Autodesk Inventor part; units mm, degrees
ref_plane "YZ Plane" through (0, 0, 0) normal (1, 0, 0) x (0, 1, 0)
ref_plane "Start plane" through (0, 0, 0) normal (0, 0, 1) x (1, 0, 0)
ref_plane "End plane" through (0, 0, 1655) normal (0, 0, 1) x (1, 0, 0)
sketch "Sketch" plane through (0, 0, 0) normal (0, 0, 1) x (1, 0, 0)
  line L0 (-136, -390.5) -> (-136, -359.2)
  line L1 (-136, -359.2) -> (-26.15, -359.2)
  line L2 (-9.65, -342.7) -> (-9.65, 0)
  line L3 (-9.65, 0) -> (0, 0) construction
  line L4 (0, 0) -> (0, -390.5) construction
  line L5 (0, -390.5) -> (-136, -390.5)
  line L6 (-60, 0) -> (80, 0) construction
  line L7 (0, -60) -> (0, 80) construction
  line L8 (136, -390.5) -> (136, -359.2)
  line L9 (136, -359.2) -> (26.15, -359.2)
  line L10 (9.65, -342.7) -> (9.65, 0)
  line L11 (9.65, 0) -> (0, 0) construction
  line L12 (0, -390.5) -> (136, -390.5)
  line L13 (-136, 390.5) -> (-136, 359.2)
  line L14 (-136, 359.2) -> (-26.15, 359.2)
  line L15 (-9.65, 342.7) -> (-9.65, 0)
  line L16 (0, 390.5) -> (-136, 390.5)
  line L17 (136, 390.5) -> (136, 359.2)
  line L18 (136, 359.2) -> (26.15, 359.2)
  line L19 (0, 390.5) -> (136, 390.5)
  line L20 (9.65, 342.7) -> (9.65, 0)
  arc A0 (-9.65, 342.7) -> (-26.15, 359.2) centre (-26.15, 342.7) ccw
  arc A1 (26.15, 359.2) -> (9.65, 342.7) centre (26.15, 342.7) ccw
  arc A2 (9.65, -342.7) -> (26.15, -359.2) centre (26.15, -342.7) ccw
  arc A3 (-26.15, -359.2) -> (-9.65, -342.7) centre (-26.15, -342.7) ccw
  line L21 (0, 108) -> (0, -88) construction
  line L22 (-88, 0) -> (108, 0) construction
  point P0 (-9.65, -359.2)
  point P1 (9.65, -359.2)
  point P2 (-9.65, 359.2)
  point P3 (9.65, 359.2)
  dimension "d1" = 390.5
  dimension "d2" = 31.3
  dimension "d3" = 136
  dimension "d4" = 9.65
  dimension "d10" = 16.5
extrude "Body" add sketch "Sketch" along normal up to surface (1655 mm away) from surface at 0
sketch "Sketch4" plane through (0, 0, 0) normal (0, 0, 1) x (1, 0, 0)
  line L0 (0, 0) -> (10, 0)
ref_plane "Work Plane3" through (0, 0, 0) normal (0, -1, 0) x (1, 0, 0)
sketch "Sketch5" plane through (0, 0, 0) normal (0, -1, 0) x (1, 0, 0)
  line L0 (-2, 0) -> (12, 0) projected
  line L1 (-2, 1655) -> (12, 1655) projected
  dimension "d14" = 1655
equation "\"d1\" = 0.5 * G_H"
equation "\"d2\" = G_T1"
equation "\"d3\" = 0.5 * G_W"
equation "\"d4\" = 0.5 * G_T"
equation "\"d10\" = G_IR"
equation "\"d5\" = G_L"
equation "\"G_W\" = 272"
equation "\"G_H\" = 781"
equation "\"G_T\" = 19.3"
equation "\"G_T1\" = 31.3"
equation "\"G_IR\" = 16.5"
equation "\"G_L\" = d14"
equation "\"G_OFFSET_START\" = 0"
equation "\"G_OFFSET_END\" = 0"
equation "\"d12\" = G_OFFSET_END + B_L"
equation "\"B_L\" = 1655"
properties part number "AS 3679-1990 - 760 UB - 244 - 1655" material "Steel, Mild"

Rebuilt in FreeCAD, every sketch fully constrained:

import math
import FreeCAD as App
import Part
import Sketcher

V = App.Vector

doc = App.newDocument("Part")
body = doc.addObject("PartDesign::Body", "Body")

# Sketch on XY plane
sketch1 = doc.addObject("Sketcher::SketchObject", "Sketch")
body.addObject(sketch1)
sketch1.AttachmentSupport = (doc.XY_Plane, [""])
sketch1.MapMode = "FlatFace"
sketch1.addGeometry([
    Part.LineSegment(V(-136, -359.2, 0), V(-136, -390.5, 0)),  # 0
    Part.LineSegment(V(-136, -390.5, 0), V(136, -390.5, 0)),  # 1
    Part.LineSegment(V(136, -390.5, 0), V(136, -359.2, 0)),  # 2
    Part.LineSegment(V(136, -359.2, 0), V(26.15, -359.2, 0)),  # 3
    Part.ArcOfCircle(Part.Circle(V(26.15, -342.7, 0), V(0, 0, 1), 16.5), math.radians(180), math.radians(270)),  # 4
    Part.LineSegment(V(9.65, -342.7, 0), V(9.65, 342.7, 0)),  # 5
    Part.ArcOfCircle(Part.Circle(V(26.15, 342.7, 0), V(0, 0, 1), 16.5), math.radians(90), math.radians(180)),  # 6
    Part.LineSegment(V(26.15, 359.2, 0), V(136, 359.2, 0)),  # 7
    Part.LineSegment(V(136, 359.2, 0), V(136, 390.5, 0)),  # 8
    Part.LineSegment(V(136, 390.5, 0), V(-136, 390.5, 0)),  # 9
    Part.LineSegment(V(-136, 390.5, 0), V(-136, 359.2, 0)),  # 10
    Part.LineSegment(V(-136, 359.2, 0), V(-26.15, 359.2, 0)),  # 11
    Part.ArcOfCircle(Part.Circle(V(-26.15, 342.7, 0), V(0, 0, 1), 16.5), math.radians(0), math.radians(90)),  # 12
    Part.LineSegment(V(-9.65, 342.7, 0), V(-9.65, -342.7, 0)),  # 13
    Part.ArcOfCircle(Part.Circle(V(-26.15, -342.7, 0), V(0, 0, 1), 16.5), math.radians(-90), math.radians(0)),  # 14
    Part.LineSegment(V(-26.15, -359.2, 0), V(-136, -359.2, 0)),  # 15
], False)
sketch1.addConstraint([
    Sketcher.Constraint("Coincident", 0, 2, 1, 1),
    Sketcher.Constraint("Coincident", 1, 2, 2, 1),
    Sketcher.Constraint("Coincident", 2, 2, 3, 1),
    Sketcher.Constraint("Tangent", 3, 2, 4, 2),
    Sketcher.Constraint("Tangent", 4, 1, 5, 1),
    Sketcher.Constraint("Tangent", 5, 2, 6, 2),
    Sketcher.Constraint("Tangent", 6, 1, 7, 1),
    Sketcher.Constraint("Coincident", 7, 2, 8, 1),
    Sketcher.Constraint("Coincident", 8, 2, 9, 1),
    Sketcher.Constraint("Coincident", 9, 2, 10, 1),
    Sketcher.Constraint("Coincident", 10, 2, 11, 1),
    Sketcher.Constraint("Tangent", 11, 2, 12, 2),
    Sketcher.Constraint("Tangent", 12, 1, 13, 1),
    Sketcher.Constraint("Tangent", 13, 2, 14, 2),
    Sketcher.Constraint("Tangent", 14, 1, 15, 1),
    Sketcher.Constraint("Coincident", 15, 2, 0, 1),
    Sketcher.Constraint("Vertical", 0),
    Sketcher.Constraint("Horizontal", 1),
    Sketcher.Constraint("Vertical", 2),
    Sketcher.Constraint("Horizontal", 3),
    Sketcher.Constraint("Vertical", 5),
    Sketcher.Constraint("Horizontal", 7),
    Sketcher.Constraint("Vertical", 8),
    Sketcher.Constraint("Horizontal", 9),
    Sketcher.Constraint("Vertical", 10),
    Sketcher.Constraint("Horizontal", 11),
    Sketcher.Constraint("Vertical", 13),
    Sketcher.Constraint("Horizontal", 15),
    Sketcher.Constraint("Equal", 4, 6),
    Sketcher.Constraint("Equal", 6, 12),
    Sketcher.Constraint("Equal", 12, 14),
    Sketcher.Constraint("Symmetric", 4, 3, 12, 3, -1, 1),
    Sketcher.Constraint("Symmetric", 0, 2, 8, 2, -1, 1),
    Sketcher.Constraint("Symmetric", 7, 2, 10, 2, -2),
    Sketcher.Constraint("Symmetric", 2, 2, 15, 2, -2),
    Sketcher.Constraint("Radius", 4, 16.5),
    Sketcher.Constraint("DistanceY", 0, 2, 0, 1, 31.3),
    Sketcher.Constraint("DistanceX", 0, 2, -1, 1, 136.0),
    Sketcher.Constraint("DistanceY", 0, 2, -1, 1, 390.5),
    Sketcher.Constraint("DistanceX", -1, 1, 4, 1, 9.65),
])
pad1 = doc.addObject("PartDesign::Pad", "Pad")
body.addObject(pad1)
pad1.Profile = sketch1
pad1.Length = 1655

doc.recompute()
